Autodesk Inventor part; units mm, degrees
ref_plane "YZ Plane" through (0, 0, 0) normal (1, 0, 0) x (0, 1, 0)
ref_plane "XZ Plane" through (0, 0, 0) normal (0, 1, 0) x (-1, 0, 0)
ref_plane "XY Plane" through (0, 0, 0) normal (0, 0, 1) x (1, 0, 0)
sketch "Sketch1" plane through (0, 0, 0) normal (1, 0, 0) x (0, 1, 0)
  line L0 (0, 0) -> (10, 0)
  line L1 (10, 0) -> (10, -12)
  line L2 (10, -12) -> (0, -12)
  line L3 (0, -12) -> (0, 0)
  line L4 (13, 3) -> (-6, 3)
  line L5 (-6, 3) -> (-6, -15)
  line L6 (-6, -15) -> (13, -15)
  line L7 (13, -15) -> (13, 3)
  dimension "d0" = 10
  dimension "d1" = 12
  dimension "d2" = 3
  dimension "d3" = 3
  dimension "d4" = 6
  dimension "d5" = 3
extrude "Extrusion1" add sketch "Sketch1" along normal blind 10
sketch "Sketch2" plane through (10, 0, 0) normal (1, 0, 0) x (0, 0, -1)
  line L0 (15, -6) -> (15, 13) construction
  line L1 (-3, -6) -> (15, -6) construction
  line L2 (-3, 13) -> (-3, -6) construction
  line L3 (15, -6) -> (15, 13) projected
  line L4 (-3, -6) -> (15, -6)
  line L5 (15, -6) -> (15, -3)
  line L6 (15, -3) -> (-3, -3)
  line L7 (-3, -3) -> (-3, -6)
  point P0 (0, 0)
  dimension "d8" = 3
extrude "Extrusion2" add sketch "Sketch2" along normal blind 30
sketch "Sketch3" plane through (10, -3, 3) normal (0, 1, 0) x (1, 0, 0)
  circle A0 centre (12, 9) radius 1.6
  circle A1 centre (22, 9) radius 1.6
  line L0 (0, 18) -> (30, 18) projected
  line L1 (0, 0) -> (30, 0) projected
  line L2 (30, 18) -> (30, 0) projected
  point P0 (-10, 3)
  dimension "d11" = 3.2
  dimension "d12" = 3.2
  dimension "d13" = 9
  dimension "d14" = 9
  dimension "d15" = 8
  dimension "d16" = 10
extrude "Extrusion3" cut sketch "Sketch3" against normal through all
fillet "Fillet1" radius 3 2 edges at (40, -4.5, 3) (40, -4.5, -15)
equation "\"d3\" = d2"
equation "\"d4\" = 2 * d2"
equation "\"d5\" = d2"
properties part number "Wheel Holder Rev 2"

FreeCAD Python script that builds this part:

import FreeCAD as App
import Part
import Sketcher
Q = App.Units.Quantity


def edges_at(feature, points):
    """Names of the edges that pass closest to the given points."""
    edges = feature.Shape.Edges
    near = lambda p: min(range(len(edges)), key=lambda i: edges[i].distToShape(Part.Vertex(*p))[0])
    return sorted({f"Edge{near(p) + 1}" for p in points})

doc = App.newDocument("Part")
body = doc.addObject("PartDesign::Body", "Body")

# Sketch on YZ plane
sketch1 = body.newObject("Sketcher::SketchObject", "Sketch")
sketch1.AttachmentSupport = (doc.getObject("YZ_Plane"), [""])
sketch1.MapMode = "FlatFace"
sketch1.addGeometry([
    Part.LineSegment(App.Vector(13, -15, 0), App.Vector(13, 3, 0)),  # 0
    Part.LineSegment(App.Vector(13, 3, 0), App.Vector(-6, 3, 0)),  # 1
    Part.LineSegment(App.Vector(-6, 3, 0), App.Vector(-6, -15, 0)),  # 2
    Part.LineSegment(App.Vector(-6, -15, 0), App.Vector(13, -15, 0)),  # 3
    Part.LineSegment(App.Vector(0, -12, 0), App.Vector(0, 0, 0)),  # 4
    Part.LineSegment(App.Vector(0, 0, 0), App.Vector(10, 0, 0)),  # 5
    Part.LineSegment(App.Vector(10, 0, 0), App.Vector(10, -12, 0)),  # 6
    Part.LineSegment(App.Vector(10, -12, 0), App.Vector(0, -12, 0)),  # 7
], False)
sketch1.addConstraint([
    Sketcher.Constraint("Coincident", 0, 2, 1, 1),
    Sketcher.Constraint("Coincident", 1, 2, 2, 1),
    Sketcher.Constraint("Coincident", 2, 2, 3, 1),
    Sketcher.Constraint("Coincident", 3, 2, 0, 1),
    Sketcher.Constraint("Coincident", 4, 2, 5, 1),
    Sketcher.Constraint("Coincident", 5, 2, 6, 1),
    Sketcher.Constraint("Coincident", 6, 2, 7, 1),
    Sketcher.Constraint("Coincident", 7, 2, 4, 1),
    Sketcher.Constraint("Vertical", 0),
    Sketcher.Constraint("Horizontal", 1),
    Sketcher.Constraint("Vertical", 2),
    Sketcher.Constraint("Horizontal", 3),
    Sketcher.Constraint("Vertical", 4),
    Sketcher.Constraint("Horizontal", 5),
    Sketcher.Constraint("Vertical", 6),
    Sketcher.Constraint("Horizontal", 7),
    Sketcher.Constraint("Coincident", 4, 2, -1, 1),
    Sketcher.Constraint("DistanceX", 5, 1, 5, 2, Q("10 mm")),
    Sketcher.Constraint("DistanceY", 4, 1, 4, 2, Q("12 mm")),
    Sketcher.Constraint("DistanceY", -1, 1, 0, 2, Q("3 mm")),
    Sketcher.Constraint("DistanceX", 1, 2, -1, 1, Q("6 mm")),
    Sketcher.Constraint("DistanceX", 5, 2, 0, 2, Q("3 mm")),
    Sketcher.Constraint("DistanceY", 3, 2, 6, 2, Q("3 mm")),
])
pad1 = body.newObject("PartDesign::Pad", "Pad")
pad1.Profile = sketch1
pad1.Length = 10

# Sketch on YZ plane
sketch2 = body.newObject("Sketcher::SketchObject", "Sketch001")
sketch2.AttachmentSupport = (doc.getObject("YZ_Plane"), [""])
sketch2.MapMode = "FlatFace"
sketch2.AttachmentOffset = App.Placement(App.Vector(0, 0, 10), App.Rotation())
sketch2.addGeometry([
    Part.LineSegment(App.Vector(-6, 3, 0), App.Vector(-6, -15, 0)),
    Part.LineSegment(App.Vector(-6, -15, 0), App.Vector(-3, -15, 0)),
    Part.LineSegment(App.Vector(-3, -15, 0), App.Vector(-3, 3, 0)),
    Part.LineSegment(App.Vector(-3, 3, 0), App.Vector(-6, 3, 0)),
], False)
sketch2.addConstraint([
    Sketcher.Constraint("Coincident", 0, 2, 1, 1),
    Sketcher.Constraint("Coincident", 1, 2, 2, 1),
    Sketcher.Constraint("Coincident", 2, 2, 3, 1),
    Sketcher.Constraint("Coincident", 3, 2, 0, 1),
    Sketcher.Constraint("Vertical", 0),
    Sketcher.Constraint("Horizontal", 1),
    Sketcher.Constraint("Vertical", 2),
    Sketcher.Constraint("Horizontal", 3),
    Sketcher.Constraint("DistanceX", 1, 1, 1, 2, Q("3 mm")),
    Sketcher.Constraint("DistanceX", 1, 2, -1, 1, Q("3 mm")),
    Sketcher.Constraint("DistanceY", -1, 1, 2, 2, Q("3 mm")),
    Sketcher.Constraint("DistanceY", 0, 2, 0, 1, Q("18 mm")),
])
pad2 = body.newObject("PartDesign::Pad", "Pad001")
pad2.Profile = sketch2
pad2.Length = 30

# Sketch on XZ plane
sketch3 = body.newObject("Sketcher::SketchObject", "Sketch002")
sketch3.AttachmentSupport = (doc.getObject("XZ_Plane"), [""])
sketch3.MapMode = "FlatFace"
sketch3.AttachmentOffset = App.Placement(App.Vector(0, 0, 3), App.Rotation())
sketch3.addGeometry([
    Part.Circle(App.Vector(22, -6, 0), App.Vector(0, 0, 1), 1.6),
    Part.Circle(App.Vector(32, -6, 0), App.Vector(0, 0, 1), 1.6),
], False)
sketch3.addConstraint([
    Sketcher.Constraint("Equal", 0, 1),
    Sketcher.Constraint("Horizontal", 0, 3, 1, 3),
    Sketcher.Constraint("Diameter", 0, Q("3.2 mm")),
    Sketcher.Constraint("DistanceX", 0, 3, 1, 3, Q("10 mm")),
    Sketcher.Constraint("DistanceX", -1, 1, 0, 3, Q("22 mm")),
    Sketcher.Constraint("DistanceY", 0, 3, -1, 1, Q("6 mm")),
])
pocket1 = body.newObject("PartDesign::Pocket", "Pocket")
pocket1.Profile = sketch3
pocket1.Type = "ThroughAll"
pocket1.Reversed = True
doc.recompute()

fillet = body.newObject("PartDesign::Fillet", "Fillet")
fillet.Base = (pocket1, edges_at(pocket1, [(40, -4.5, 3), (40, -4.5, -15)]))
fillet.Radius = 3

doc.recompute()
